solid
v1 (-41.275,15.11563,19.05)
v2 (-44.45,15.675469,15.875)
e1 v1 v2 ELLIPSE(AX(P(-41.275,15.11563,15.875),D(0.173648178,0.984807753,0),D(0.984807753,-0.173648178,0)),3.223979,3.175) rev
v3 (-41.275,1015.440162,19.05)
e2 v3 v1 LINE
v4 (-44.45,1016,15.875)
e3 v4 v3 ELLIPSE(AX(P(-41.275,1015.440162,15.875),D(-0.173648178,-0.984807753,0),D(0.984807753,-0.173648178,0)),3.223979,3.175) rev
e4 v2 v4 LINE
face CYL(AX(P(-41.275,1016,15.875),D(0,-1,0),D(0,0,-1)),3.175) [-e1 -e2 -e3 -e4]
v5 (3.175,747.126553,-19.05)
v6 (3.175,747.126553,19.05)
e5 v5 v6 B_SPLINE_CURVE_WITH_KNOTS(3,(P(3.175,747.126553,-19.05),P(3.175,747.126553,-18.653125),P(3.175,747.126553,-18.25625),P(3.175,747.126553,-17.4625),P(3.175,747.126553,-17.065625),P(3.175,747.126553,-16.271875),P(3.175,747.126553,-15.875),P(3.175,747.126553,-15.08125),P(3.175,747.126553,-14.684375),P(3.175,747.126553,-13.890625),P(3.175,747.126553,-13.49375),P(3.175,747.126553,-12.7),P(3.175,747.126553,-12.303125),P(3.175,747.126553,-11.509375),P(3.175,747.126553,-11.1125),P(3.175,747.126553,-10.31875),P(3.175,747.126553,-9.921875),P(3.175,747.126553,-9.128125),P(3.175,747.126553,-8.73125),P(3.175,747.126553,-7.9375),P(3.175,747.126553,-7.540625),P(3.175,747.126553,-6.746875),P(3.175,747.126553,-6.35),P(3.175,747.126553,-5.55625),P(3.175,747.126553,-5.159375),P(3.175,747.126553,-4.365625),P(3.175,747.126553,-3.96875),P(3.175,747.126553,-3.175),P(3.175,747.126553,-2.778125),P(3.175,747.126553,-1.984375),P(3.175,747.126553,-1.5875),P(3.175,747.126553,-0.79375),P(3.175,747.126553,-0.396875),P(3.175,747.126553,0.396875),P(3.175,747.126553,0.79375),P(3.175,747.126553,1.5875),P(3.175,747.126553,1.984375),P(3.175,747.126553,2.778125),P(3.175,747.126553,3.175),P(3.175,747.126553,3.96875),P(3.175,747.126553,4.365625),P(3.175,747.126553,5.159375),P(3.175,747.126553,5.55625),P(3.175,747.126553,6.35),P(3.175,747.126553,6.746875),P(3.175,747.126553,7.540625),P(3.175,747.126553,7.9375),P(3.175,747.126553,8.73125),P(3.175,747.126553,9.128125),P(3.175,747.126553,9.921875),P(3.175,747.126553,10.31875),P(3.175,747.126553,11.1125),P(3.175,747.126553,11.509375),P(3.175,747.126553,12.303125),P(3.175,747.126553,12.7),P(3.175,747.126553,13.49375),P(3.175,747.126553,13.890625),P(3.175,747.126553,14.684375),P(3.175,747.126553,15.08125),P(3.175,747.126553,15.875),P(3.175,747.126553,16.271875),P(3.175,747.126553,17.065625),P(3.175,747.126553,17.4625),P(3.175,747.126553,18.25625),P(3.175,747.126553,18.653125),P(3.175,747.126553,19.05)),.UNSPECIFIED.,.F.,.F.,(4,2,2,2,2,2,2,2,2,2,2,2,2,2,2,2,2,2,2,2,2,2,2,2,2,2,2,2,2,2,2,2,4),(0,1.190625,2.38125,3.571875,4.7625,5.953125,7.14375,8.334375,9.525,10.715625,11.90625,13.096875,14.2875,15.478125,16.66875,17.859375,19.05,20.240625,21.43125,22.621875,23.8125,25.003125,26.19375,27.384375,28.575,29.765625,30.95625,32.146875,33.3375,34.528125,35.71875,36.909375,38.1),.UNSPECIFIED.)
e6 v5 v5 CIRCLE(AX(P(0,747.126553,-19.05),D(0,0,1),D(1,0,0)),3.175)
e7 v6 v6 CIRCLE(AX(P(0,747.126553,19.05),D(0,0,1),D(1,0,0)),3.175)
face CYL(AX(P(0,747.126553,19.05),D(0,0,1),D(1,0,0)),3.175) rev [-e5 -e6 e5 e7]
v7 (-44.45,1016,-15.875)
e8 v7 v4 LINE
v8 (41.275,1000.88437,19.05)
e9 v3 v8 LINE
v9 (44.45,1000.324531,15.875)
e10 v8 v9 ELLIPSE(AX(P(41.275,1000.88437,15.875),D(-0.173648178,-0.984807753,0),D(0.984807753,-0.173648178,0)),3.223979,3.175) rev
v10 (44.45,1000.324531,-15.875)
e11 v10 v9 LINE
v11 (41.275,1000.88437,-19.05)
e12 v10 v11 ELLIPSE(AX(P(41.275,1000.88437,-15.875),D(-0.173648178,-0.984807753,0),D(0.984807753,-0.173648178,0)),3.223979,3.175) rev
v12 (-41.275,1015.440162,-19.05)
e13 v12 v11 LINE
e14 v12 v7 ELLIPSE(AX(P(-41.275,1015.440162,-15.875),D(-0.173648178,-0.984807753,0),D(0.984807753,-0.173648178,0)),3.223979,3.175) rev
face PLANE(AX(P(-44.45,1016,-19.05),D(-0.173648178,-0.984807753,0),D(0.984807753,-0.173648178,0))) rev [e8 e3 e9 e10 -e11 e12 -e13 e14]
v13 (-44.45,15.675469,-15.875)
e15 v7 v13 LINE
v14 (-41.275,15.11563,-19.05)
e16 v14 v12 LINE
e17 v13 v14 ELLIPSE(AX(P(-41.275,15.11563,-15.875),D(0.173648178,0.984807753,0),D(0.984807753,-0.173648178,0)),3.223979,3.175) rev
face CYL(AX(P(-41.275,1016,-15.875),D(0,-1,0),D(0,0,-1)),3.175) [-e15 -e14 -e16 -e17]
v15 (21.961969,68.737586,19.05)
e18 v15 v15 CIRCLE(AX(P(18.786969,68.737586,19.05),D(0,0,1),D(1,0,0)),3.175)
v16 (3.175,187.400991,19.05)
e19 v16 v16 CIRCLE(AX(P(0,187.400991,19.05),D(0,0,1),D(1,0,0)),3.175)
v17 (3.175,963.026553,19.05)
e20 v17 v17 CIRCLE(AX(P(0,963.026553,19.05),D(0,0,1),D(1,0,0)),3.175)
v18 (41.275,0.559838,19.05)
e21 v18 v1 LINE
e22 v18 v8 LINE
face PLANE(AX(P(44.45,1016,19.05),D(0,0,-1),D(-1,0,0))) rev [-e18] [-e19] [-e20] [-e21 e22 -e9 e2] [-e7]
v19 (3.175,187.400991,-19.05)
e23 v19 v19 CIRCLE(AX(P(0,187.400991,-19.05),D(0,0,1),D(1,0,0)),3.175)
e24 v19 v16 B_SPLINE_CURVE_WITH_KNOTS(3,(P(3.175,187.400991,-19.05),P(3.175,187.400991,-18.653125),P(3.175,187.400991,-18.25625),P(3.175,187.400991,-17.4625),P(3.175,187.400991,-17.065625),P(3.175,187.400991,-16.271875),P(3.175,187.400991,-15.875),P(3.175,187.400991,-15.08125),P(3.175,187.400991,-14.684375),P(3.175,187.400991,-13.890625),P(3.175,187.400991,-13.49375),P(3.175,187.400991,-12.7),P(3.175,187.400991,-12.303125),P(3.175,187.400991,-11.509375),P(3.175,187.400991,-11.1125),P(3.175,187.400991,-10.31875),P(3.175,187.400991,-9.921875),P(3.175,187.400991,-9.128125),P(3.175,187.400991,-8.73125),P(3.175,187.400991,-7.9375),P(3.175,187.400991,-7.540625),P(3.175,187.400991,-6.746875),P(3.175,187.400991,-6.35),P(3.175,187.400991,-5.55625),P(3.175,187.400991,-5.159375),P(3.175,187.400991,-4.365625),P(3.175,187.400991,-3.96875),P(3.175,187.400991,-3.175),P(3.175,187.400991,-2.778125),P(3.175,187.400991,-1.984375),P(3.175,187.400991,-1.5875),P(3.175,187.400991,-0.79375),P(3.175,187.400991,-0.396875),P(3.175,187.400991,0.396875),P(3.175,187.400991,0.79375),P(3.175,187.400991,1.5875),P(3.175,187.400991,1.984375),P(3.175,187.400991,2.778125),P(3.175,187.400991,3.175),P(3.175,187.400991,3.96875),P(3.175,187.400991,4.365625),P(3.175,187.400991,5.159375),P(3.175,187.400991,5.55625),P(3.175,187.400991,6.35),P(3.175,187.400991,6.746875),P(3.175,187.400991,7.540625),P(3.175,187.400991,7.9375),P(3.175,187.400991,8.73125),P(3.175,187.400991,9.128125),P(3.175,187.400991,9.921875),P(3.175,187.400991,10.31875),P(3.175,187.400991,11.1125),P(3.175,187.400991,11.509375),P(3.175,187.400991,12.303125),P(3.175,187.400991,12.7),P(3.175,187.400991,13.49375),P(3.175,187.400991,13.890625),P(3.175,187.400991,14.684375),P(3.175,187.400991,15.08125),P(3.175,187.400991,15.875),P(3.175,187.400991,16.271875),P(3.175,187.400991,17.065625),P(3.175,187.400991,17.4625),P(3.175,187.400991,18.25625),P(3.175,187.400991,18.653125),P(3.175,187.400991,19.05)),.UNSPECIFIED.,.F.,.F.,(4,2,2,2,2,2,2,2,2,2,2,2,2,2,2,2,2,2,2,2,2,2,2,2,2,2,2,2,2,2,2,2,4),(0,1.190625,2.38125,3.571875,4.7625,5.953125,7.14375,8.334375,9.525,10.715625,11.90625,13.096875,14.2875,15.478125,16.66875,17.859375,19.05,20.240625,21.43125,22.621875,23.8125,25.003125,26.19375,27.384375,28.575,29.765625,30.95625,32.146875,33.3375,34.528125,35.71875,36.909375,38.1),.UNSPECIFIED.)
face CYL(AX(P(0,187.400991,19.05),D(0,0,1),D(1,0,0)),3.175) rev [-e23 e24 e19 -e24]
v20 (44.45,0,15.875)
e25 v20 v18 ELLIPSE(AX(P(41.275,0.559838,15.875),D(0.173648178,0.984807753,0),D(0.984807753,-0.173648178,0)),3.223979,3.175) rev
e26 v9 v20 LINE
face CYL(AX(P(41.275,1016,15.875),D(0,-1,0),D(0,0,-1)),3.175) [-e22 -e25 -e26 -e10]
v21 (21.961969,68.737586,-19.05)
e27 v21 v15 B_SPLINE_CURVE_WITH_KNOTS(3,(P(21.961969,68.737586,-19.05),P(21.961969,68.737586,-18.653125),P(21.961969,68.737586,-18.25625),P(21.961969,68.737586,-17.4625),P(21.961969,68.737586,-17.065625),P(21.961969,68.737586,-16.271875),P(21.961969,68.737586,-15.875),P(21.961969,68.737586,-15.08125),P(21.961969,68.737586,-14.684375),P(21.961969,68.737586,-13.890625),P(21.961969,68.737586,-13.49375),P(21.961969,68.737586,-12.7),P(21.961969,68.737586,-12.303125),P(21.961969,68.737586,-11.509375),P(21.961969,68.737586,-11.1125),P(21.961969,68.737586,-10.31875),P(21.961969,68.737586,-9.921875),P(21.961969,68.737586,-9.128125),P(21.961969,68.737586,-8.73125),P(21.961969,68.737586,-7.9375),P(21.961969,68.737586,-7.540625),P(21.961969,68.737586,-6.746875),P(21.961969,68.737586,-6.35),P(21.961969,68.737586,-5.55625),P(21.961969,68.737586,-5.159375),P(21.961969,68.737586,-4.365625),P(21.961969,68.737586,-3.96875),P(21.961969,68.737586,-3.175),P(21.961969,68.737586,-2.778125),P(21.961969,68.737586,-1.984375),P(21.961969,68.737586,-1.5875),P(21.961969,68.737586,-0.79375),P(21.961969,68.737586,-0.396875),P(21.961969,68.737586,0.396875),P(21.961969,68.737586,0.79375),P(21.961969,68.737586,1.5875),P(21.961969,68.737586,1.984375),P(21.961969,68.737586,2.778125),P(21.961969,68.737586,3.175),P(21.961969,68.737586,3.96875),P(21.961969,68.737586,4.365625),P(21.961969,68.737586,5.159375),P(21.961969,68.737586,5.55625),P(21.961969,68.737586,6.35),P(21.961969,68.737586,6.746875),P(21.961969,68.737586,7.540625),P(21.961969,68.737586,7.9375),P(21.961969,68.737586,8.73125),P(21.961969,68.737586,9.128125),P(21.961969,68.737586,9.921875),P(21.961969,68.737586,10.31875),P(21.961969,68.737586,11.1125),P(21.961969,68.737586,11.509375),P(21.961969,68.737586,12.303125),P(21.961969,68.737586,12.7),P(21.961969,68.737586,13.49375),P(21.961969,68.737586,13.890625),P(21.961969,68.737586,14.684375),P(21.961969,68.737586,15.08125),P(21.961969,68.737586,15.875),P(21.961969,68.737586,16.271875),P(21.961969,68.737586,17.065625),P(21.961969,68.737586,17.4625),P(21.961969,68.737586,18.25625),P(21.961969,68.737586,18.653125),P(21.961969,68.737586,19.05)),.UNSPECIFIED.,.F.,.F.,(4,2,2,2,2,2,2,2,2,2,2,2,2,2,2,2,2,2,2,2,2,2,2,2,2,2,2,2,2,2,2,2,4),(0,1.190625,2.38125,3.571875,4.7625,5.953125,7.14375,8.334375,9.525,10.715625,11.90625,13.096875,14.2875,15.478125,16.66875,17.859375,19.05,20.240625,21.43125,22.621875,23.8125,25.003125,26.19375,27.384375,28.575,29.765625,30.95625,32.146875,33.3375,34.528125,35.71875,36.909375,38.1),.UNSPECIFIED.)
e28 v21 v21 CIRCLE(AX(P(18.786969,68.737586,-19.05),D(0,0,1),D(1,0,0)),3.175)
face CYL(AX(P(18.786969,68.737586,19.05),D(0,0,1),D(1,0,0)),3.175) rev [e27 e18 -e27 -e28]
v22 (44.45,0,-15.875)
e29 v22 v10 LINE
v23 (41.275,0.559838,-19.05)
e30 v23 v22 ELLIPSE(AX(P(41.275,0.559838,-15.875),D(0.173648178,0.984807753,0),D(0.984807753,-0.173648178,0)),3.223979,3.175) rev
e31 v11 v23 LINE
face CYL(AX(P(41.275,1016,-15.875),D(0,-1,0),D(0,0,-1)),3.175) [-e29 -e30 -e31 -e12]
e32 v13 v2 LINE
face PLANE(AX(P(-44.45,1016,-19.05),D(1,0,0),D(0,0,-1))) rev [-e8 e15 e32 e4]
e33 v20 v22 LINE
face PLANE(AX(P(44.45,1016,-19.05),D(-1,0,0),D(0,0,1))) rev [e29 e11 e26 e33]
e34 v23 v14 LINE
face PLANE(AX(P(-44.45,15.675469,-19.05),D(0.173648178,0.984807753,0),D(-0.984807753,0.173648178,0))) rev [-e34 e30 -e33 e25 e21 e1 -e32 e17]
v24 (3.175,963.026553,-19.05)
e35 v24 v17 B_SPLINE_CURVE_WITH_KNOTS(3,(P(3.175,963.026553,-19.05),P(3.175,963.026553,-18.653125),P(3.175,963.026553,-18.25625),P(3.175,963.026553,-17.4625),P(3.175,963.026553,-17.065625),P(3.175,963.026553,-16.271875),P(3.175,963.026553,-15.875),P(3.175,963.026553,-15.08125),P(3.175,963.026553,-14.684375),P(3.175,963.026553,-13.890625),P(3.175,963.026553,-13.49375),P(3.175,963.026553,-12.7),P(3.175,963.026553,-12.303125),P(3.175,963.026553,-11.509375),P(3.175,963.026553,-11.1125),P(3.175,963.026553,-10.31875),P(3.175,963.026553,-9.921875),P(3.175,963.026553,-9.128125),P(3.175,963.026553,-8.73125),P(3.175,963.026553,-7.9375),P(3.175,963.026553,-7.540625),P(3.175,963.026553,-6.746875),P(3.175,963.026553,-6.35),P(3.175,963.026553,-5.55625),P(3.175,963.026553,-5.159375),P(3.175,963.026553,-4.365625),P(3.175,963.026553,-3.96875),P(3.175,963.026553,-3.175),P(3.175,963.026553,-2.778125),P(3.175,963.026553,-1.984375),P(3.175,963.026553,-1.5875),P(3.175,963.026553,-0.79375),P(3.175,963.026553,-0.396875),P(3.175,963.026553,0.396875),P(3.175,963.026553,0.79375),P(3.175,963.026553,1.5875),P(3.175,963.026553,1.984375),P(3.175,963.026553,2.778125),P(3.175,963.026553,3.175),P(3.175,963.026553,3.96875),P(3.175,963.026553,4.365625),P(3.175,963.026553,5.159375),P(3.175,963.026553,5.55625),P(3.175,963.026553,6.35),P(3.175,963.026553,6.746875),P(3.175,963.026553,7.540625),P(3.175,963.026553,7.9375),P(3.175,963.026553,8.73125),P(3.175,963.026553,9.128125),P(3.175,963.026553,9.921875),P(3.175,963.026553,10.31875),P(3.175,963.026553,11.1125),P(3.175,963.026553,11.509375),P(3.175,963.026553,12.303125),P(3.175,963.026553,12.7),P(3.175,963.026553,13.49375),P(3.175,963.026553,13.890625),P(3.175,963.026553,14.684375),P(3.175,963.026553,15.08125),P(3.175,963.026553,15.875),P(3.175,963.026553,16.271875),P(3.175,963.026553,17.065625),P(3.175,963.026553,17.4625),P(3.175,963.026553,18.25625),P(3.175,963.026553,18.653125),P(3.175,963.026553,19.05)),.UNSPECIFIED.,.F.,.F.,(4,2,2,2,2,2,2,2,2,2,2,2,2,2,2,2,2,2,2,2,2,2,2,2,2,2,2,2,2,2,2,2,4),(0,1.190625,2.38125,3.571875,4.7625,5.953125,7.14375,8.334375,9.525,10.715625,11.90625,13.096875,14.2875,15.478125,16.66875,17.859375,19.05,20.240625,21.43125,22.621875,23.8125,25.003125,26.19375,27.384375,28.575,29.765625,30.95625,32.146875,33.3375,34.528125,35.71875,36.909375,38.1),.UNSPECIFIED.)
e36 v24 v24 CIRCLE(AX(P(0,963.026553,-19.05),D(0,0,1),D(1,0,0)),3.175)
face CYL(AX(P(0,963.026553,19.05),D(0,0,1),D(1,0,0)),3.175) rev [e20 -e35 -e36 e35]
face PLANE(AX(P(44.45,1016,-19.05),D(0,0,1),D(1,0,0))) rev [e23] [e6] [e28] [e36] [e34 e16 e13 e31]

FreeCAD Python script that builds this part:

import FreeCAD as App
import Part
import Sketcher
Q = App.Units.Quantity


def edges_at(feature, points):
    """Names of the edges that pass closest to the given points."""
    edges = feature.Shape.Edges
    near = lambda p: min(range(len(edges)), key=lambda i: edges[i].distToShape(Part.Vertex(*p))[0])
    return sorted({f"Edge{near(p) + 1}" for p in points})

doc = App.newDocument("Part")
body = doc.addObject("PartDesign::Body", "Body")

# Sketch on XZ plane
sketch1 = body.newObject("Sketcher::SketchObject", "Sketch")
sketch1.AttachmentSupport = (doc.getObject("XZ_Plane"), [""])
sketch1.MapMode = "FlatFace"
sketch1.addGeometry(Part.LineSegment(App.Vector(-44, -19, 0), App.Vector(-44, 19, 0)), False)
sketch1.addGeometry(Part.LineSegment(App.Vector(-44, 19, 0), App.Vector(44, 19, 0)), False)
sketch1.addGeometry(Part.LineSegment(App.Vector(44, 19, 0), App.Vector(44, -19, 0)), False)
sketch1.addGeometry(Part.LineSegment(App.Vector(44, -19, 0), App.Vector(-44, -19, 0)), False)
sketch1.addConstraint(Sketcher.Constraint("Coincident", 0, 2, 1, 1))
sketch1.addConstraint(Sketcher.Constraint("Coincident", 1, 2, 2, 1))
sketch1.addConstraint(Sketcher.Constraint("Coincident", 2, 2, 3, 1))
sketch1.addConstraint(Sketcher.Constraint("Coincident", 3, 2, 0, 1))
sketch1.addConstraint(Sketcher.Constraint("Vertical", 0))
sketch1.addConstraint(Sketcher.Constraint("Horizontal", 1))
sketch1.addConstraint(Sketcher.Constraint("Vertical", 2))
sketch1.addConstraint(Sketcher.Constraint("Horizontal", 3))
sketch1.addConstraint(Sketcher.Constraint("Symmetric", 0, 2, 2, 2, -1, 1))
sketch1.addConstraint(Sketcher.Constraint("DistanceX", 1, 1, 1, 2, Q("3.5 in")))
sketch1.addConstraint(Sketcher.Constraint("DistanceY", 0, 1, 0, 2, Q("1.5 in")))
pad1 = body.newObject("PartDesign::Pad", "Pad")
pad1.Profile = sketch1
pad1.Length = Q("40 in")
pad1.Reversed = True

# Sketch on XY plane
sketch2 = body.newObject("Sketcher::SketchObject", "Sketch001")
sketch2.AttachmentSupport = (doc.getObject("XY_Plane"), [""])
sketch2.MapMode = "FlatFace"
sketch2.AttachmentOffset = App.Placement(App.Vector(0, 0, 0.75 * 25.4), App.Rotation())
sketch2.addGeometry(Part.LineSegment(App.Vector(-44, 0, 0), App.Vector(44, 0, 0)), False)
sketch2.addGeometry(Part.LineSegment(App.Vector(44, 0, 0), App.Vector(-44, 16, 0)), False)
sketch2.addGeometry(Part.LineSegment(App.Vector(-44, 16, 0), App.Vector(-44, 0, 0)), False)
sketch2.addGeometry(Part.LineSegment(App.Vector(-44, 1016, 0), App.Vector(44, 1000, 0)), False)
sketch2.addGeometry(Part.LineSegment(App.Vector(44, 1000, 0), App.Vector(44, 1016, 0)), False)
sketch2.addGeometry(Part.LineSegment(App.Vector(44, 1016, 0), App.Vector(-44, 1016, 0)), False)
sketch2.addConstraint(Sketcher.Constraint("Coincident", 0, 2, 1, 1))
sketch2.addConstraint(Sketcher.Constraint("Coincident", 1, 2, 2, 1))
sketch2.addConstraint(Sketcher.Constraint("Coincident", 2, 2, 0, 1))
sketch2.addConstraint(Sketcher.Constraint("Coincident", 3, 2, 4, 1))
sketch2.addConstraint(Sketcher.Constraint("Coincident", 4, 2, 5, 1))
sketch2.addConstraint(Sketcher.Constraint("Coincident", 5, 2, 3, 1))
sketch2.addConstraint(Sketcher.Constraint("Horizontal", 0))
sketch2.addConstraint(Sketcher.Constraint("Vertical", 2))
sketch2.addConstraint(Sketcher.Constraint("Vertical", 4))
sketch2.addConstraint(Sketcher.Constraint("Horizontal", 5))
sketch2.addConstraint(Sketcher.Constraint("Symmetric", 0, 2, 2, 2, -1, 1))
sketch2.addConstraint(Sketcher.Constraint("Parallel", 1, 3))
sketch2.addConstraint(Sketcher.Constraint("Vertical", 0, 2, 3, 2))
sketch2.addConstraint(Sketcher.Constraint("Vertical", 2, 2, 5, 2))
sketch2.addConstraint(Sketcher.Constraint("DistanceX", 0, 1, 0, 2, Q("3.5 in")))
sketch2.addConstraint(Sketcher.Constraint("DistanceY", -1, 1, 4, 2, Q("40 in")))
sketch2.addConstraint(Sketcher.Constraint("Angle", 1, Q("170 deg")))
pocket1 = body.newObject("PartDesign::Pocket", "Pocket")
pocket1.Profile = sketch2
pocket1.Type = "ThroughAll"

# Sketch on XY plane
sketch3 = body.newObject("Sketcher::SketchObject", "Sketch002")
sketch3.AttachmentSupport = (doc.getObject("XY_Plane"), [""])
sketch3.MapMode = "FlatFace"
sketch3.AttachmentOffset = App.Placement(App.Vector(0, 0, 0.75 * 25.4), App.Rotation())
sketch3.addGeometry(Part.Circle(App.Vector(18.8, 68.7, 0), App.Vector(0, 0, 1), 3.2), False)
sketch3.addGeometry(Part.Circle(App.Vector(0, 187.4, 0), App.Vector(0, 0, 1), 3.2), False)
sketch3.addGeometry(Part.Circle(App.Vector(0, 747.1, 0), App.Vector(0, 0, 1), 3.2), False)
sketch3.addGeometry(Part.Circle(App.Vector(0, 963, 0), App.Vector(0, 0, 1), 3.2), False)
sketch3.addConstraint(Sketcher.Constraint("Equal", 0, 1))
sketch3.addConstraint(Sketcher.Constraint("Equal", 1, 2))
sketch3.addConstraint(Sketcher.Constraint("Equal", 2, 3))
sketch3.addConstraint(Sketcher.Constraint("PointOnObject", 1, 3, -2))
sketch3.addConstraint(Sketcher.Constraint("PointOnObject", 2, 3, -2))
sketch3.addConstraint(Sketcher.Constraint("PointOnObject", 3, 3, -2))
sketch3.addConstraint(Sketcher.Constraint("Diameter", 0, Q("0.25 in")))
sketch3.addConstraint(Sketcher.Constraint("DistanceY", 2, 3, 3, 3, Q("8.5 in")))
sketch3.addConstraint(Sketcher.Constraint("DistanceX", -1, 1, 0, 3, Q("18.786969 mm")))
sketch3.addConstraint(Sketcher.Constraint("DistanceY", -1, 1, 1, 3, Q("187.400991 mm")))
sketch3.addConstraint(Sketcher.Constraint("DistanceY", 1, 3, 2, 3, Q("559.725561 mm")))
sketch3.addConstraint(Sketcher.Constraint("DistanceY", -1, 1, 0, 3, Q("68.737586 mm")))
doc.recompute()
hole = body.newObject("PartDesign::Hole", "Hole")
hole.Profile = sketch3
hole.ThreadType = "None"
hole.Diameter = Q("0.25 in")
hole.DepthType = "ThroughAll"
doc.recompute()

fillet = body.newObject("PartDesign::Fillet", "Fillet")
fillet.Base = (hole, edges_at(hole, [
    (44.45, 500.162, -19.05),
    (44.45, 500.162, 19.05),
    (-44.45, 515.838, -19.05),
    (-44.45, 515.838, 19.05),
]))
fillet.Radius = Q("0.125 in")

doc.recompute()
